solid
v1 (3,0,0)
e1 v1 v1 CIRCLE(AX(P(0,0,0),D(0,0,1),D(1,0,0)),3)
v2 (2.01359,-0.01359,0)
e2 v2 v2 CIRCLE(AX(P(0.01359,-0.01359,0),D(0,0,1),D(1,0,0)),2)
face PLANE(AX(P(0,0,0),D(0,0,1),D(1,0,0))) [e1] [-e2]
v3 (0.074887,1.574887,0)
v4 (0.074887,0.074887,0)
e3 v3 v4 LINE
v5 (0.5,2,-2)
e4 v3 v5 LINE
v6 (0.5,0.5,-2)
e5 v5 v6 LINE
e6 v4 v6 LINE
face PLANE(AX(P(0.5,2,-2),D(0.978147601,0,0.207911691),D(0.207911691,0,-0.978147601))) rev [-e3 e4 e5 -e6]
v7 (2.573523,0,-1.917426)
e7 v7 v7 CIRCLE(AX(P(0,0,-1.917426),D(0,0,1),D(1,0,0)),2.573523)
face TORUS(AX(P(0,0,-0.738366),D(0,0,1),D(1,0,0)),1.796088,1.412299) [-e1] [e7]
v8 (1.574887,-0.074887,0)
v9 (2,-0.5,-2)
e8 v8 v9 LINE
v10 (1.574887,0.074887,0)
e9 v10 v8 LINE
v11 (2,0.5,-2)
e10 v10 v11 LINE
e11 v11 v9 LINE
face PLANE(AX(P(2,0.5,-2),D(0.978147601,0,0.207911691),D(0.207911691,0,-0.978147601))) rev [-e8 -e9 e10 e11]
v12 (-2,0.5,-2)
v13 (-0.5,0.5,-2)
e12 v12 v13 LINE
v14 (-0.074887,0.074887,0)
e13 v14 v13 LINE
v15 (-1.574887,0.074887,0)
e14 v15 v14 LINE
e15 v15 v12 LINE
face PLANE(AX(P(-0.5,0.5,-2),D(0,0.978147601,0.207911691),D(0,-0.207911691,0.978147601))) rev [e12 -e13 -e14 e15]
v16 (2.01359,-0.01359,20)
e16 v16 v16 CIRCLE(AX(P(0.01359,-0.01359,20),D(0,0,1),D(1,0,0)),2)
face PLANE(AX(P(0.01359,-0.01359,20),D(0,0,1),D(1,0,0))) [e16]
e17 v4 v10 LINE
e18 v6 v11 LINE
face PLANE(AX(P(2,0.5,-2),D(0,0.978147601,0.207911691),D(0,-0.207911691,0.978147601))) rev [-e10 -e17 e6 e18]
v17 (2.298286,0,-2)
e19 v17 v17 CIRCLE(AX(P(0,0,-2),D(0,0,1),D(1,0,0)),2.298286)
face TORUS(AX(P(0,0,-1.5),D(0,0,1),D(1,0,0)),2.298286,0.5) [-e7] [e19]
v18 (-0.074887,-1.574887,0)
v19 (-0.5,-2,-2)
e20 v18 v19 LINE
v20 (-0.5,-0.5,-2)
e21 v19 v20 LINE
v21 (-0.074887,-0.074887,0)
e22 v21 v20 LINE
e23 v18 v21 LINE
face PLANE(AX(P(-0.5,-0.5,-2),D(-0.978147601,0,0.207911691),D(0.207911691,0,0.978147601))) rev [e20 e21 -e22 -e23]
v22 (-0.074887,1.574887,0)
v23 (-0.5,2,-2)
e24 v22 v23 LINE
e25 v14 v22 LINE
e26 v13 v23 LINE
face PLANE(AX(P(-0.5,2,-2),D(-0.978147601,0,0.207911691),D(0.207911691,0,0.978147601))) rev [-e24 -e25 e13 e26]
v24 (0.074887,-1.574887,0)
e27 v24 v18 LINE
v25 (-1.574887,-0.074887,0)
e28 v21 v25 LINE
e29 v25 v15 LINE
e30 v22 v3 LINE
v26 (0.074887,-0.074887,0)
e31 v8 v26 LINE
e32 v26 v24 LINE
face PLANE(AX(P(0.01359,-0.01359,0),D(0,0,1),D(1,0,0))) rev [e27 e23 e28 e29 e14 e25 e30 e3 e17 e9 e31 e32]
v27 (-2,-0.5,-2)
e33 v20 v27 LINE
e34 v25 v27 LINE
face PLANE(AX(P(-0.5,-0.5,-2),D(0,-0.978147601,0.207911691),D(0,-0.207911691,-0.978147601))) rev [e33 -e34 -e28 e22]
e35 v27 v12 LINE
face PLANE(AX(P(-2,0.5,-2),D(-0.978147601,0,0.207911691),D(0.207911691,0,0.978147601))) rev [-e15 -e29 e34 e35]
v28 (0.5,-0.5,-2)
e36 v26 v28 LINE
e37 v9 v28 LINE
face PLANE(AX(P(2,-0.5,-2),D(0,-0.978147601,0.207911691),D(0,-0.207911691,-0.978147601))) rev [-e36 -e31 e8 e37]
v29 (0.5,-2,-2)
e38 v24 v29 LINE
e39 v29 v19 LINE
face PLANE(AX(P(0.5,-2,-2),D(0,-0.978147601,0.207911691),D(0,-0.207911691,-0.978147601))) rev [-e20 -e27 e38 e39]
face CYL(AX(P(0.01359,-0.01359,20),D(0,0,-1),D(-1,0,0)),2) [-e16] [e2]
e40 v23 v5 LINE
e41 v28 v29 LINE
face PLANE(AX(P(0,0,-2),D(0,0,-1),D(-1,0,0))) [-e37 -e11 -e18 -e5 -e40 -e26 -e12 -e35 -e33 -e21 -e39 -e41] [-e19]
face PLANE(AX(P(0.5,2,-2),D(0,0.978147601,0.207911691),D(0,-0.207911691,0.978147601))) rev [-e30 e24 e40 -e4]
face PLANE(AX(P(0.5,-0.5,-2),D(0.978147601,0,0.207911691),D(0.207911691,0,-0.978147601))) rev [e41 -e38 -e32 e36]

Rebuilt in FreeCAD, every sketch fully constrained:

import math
import FreeCAD as App
import Part
import Sketcher
from FreeCAD import Vector


def faces_at(feature, points):
    """Names of the faces that lie closest to the given points."""
    faces = feature.Shape.Faces
    near = lambda p: min(range(len(faces)), key=lambda i: faces[i].distToShape(Part.Vertex(*p))[0])
    return sorted({f"Face{near(p) + 1}" for p in points})


def add_polygon(sketch, points):
    """Adds a closed chain of lines whose ends are joined by coincident constraints."""
    first, n = sketch.GeometryCount, len(points)
    for a, b in zip(points, points[1:] + points[:1]):
        sketch.addGeometry(Part.LineSegment(App.Vector(*a, 0), App.Vector(*b, 0)), False)
    for i in range(n):
        sketch.addConstraint(Sketcher.Constraint("Coincident", first + i, 2, first + (i + 1) % n, 1))

doc = App.newDocument("Part")
body = doc.addObject("PartDesign::Body", "Body")

# Sketch on XZ plane
sketch1 = body.newObject("Sketcher::SketchObject", "Sketch")
sketch1.AttachmentSupport = (doc.getObject("XZ_Plane"), [""])
sketch1.MapMode = "FlatFace"
sketch1.addGeometry([
    Part.LineSegment(Vector(0, -2, 0), Vector(0, 0, 0)),  # 0
    Part.LineSegment(Vector(0, 0, 0), Vector(3, 0, 0)),  # 1
    Part.ArcOfCircle(Part.Circle(Vector(1.796088, -0.738366, 0), Vector(0, 0, 1), 1.412299), math.radians(-56.600386), math.radians(31.521007)),  # 2
    Part.ArcOfCircle(Part.Circle(Vector(2.298286, -1.5, 0), Vector(0, 0, 1), 0.5), math.radians(-90), math.radians(-56.600387)),  # 3
    Part.LineSegment(Vector(2.298286, -2, 0), Vector(0, -2, 0)),  # 4
], False)
sketch1.addConstraint([
    Sketcher.Constraint("Coincident", 0, 2, 1, 1),
    Sketcher.Constraint("Coincident", 1, 2, 2, 2),
    Sketcher.Constraint("Tangent", 2, 1, 3, 2),
    Sketcher.Constraint("Tangent", 3, 1, 4, 1),
    Sketcher.Constraint("Coincident", 4, 2, 0, 1),
    Sketcher.Constraint("Vertical", 0),
    Sketcher.Constraint("Horizontal", 1),
    Sketcher.Constraint("Horizontal", 4),
    Sketcher.Constraint("Coincident", 0, 2, -1, 1),
    Sketcher.Constraint("Radius", 3, 0.5),
    Sketcher.Constraint("DistanceX", 1, 1, 1, 2, 3.0),
    Sketcher.Constraint("DistanceY", 0, 1, 0, 2, 2.0),
    Sketcher.Constraint("Radius", 2, 1.412299),
    Sketcher.Constraint("DistanceX", 4, 2, 4, 1, 2.298286),
])
revolution = body.newObject("PartDesign::Revolution", "Revolution")
revolution.Profile = sketch1
revolution.ReferenceAxis = (sketch1, ["V_Axis"])
revolution.Angle = 360
body2 = doc.addObject("PartDesign::Body", "Body001")

# Sketch on XY plane
sketch2 = body2.newObject("Sketcher::SketchObject", "Sketch001")
sketch2.AttachmentSupport = (doc.getObject("XY_Plane001"), [""])
sketch2.MapMode = "FlatFace"
sketch2.AttachmentOffset = App.Placement(Vector(0, 0, -2), App.Rotation())
add_polygon(sketch2, [(-0.5, -0.5), (-2, -0.5), (-2, 0.5), (-0.5, 0.5), (-0.5, 2), (0.5, 2), (0.5, 0.5), (2, 0.5), (2, -0.5), (0.5, -0.5), (0.5, -2), (-0.5, -2)])  # lines 0-11
sketch2.addConstraint([
    Sketcher.Constraint("Horizontal", 0),
    Sketcher.Constraint("Vertical", 1),
    Sketcher.Constraint("Horizontal", 2),
    Sketcher.Constraint("Vertical", 3),
    Sketcher.Constraint("Horizontal", 4),
    Sketcher.Constraint("Vertical", 5),
    Sketcher.Constraint("Horizontal", 6),
    Sketcher.Constraint("Vertical", 7),
    Sketcher.Constraint("Horizontal", 8),
    Sketcher.Constraint("Vertical", 9),
    Sketcher.Constraint("Horizontal", 10),
    Sketcher.Constraint("Vertical", 11),
    Sketcher.Constraint("Symmetric", 0, 2, 6, 2, -1, 1),
    Sketcher.Constraint("Symmetric", 2, 2, 8, 2, -1, 1),
    Sketcher.Constraint("Symmetric", 4, 2, 10, 2, -1, 1),
    Sketcher.Constraint("Symmetric", 2, 2, 5, 2, -2),
    Sketcher.Constraint("Equal", 10, 1),
    Sketcher.Constraint("Equal", 8, 3),
    Sketcher.Constraint("DistanceX", 4, 1, 4, 2, 1.0),
    Sketcher.Constraint("DistanceX", 0, 2, 0, 1, 1.5),
])
pad1 = body2.newObject("PartDesign::Pad", "Pad")
pad1.Profile = sketch2
pad1.Length = 2
doc.recompute()

datumplane = body2.newObject("PartDesign::Plane", "DatumPlane")
datumplane.AttachmentSupport = (doc.getObject("XY_Plane001"), [""])
datumplane.MapMode = "FlatFace"
datumplane.AttachmentOffset = App.Placement(Vector(0, 0, -2), App.Rotation())
draft = body2.newObject("PartDesign::Draft", "Draft")
draft.Base = (pad1, faces_at(pad1, [
    (-1.25, -0.5, -1),
    (-2, 0, -1),
    (-1.25, 0.5, -1),
    (-0.5, 1.25, -1),
    (0, 2, -1),
    (0.5, 1.25, -1),
    (1.25, 0.5, -1),
    (2, 0, -1),
    (1.25, -0.5, -1),
    (0.5, -1.25, -1),
    (0, -2, -1),
    (-0.5, -1.25, -1),
]))
draft.NeutralPlane = (datumplane, [""])
draft.Angle = 12
draft.Reversed = False
doc.recompute()

boolean = body.newObject("PartDesign::Boolean", "Boolean")
boolean.Type = "Cut"
boolean.addObjects([body2])

# Sketch on XY plane
sketch3 = body.newObject("Sketcher::SketchObject", "Sketch002")
sketch3.AttachmentSupport = (doc.getObject("XY_Plane"), [""])
sketch3.MapMode = "FlatFace"
sketch3.addGeometry(Part.Circle(Vector(0.01359, -0.01359, 0), Vector(0, 0, 1), 2), False)
sketch3.addConstraint([
    Sketcher.Constraint("Diameter", 0, 4.0),
    Sketcher.Constraint("DistanceX", -1, 1, 0, 3, 0.01359),
    Sketcher.Constraint("DistanceY", 0, 3, -1, 1, 0.01359),
])
pad2 = body.newObject("PartDesign::Pad", "Pad001")
pad2.Profile = sketch3
pad2.Length = 20

doc.recompute()
